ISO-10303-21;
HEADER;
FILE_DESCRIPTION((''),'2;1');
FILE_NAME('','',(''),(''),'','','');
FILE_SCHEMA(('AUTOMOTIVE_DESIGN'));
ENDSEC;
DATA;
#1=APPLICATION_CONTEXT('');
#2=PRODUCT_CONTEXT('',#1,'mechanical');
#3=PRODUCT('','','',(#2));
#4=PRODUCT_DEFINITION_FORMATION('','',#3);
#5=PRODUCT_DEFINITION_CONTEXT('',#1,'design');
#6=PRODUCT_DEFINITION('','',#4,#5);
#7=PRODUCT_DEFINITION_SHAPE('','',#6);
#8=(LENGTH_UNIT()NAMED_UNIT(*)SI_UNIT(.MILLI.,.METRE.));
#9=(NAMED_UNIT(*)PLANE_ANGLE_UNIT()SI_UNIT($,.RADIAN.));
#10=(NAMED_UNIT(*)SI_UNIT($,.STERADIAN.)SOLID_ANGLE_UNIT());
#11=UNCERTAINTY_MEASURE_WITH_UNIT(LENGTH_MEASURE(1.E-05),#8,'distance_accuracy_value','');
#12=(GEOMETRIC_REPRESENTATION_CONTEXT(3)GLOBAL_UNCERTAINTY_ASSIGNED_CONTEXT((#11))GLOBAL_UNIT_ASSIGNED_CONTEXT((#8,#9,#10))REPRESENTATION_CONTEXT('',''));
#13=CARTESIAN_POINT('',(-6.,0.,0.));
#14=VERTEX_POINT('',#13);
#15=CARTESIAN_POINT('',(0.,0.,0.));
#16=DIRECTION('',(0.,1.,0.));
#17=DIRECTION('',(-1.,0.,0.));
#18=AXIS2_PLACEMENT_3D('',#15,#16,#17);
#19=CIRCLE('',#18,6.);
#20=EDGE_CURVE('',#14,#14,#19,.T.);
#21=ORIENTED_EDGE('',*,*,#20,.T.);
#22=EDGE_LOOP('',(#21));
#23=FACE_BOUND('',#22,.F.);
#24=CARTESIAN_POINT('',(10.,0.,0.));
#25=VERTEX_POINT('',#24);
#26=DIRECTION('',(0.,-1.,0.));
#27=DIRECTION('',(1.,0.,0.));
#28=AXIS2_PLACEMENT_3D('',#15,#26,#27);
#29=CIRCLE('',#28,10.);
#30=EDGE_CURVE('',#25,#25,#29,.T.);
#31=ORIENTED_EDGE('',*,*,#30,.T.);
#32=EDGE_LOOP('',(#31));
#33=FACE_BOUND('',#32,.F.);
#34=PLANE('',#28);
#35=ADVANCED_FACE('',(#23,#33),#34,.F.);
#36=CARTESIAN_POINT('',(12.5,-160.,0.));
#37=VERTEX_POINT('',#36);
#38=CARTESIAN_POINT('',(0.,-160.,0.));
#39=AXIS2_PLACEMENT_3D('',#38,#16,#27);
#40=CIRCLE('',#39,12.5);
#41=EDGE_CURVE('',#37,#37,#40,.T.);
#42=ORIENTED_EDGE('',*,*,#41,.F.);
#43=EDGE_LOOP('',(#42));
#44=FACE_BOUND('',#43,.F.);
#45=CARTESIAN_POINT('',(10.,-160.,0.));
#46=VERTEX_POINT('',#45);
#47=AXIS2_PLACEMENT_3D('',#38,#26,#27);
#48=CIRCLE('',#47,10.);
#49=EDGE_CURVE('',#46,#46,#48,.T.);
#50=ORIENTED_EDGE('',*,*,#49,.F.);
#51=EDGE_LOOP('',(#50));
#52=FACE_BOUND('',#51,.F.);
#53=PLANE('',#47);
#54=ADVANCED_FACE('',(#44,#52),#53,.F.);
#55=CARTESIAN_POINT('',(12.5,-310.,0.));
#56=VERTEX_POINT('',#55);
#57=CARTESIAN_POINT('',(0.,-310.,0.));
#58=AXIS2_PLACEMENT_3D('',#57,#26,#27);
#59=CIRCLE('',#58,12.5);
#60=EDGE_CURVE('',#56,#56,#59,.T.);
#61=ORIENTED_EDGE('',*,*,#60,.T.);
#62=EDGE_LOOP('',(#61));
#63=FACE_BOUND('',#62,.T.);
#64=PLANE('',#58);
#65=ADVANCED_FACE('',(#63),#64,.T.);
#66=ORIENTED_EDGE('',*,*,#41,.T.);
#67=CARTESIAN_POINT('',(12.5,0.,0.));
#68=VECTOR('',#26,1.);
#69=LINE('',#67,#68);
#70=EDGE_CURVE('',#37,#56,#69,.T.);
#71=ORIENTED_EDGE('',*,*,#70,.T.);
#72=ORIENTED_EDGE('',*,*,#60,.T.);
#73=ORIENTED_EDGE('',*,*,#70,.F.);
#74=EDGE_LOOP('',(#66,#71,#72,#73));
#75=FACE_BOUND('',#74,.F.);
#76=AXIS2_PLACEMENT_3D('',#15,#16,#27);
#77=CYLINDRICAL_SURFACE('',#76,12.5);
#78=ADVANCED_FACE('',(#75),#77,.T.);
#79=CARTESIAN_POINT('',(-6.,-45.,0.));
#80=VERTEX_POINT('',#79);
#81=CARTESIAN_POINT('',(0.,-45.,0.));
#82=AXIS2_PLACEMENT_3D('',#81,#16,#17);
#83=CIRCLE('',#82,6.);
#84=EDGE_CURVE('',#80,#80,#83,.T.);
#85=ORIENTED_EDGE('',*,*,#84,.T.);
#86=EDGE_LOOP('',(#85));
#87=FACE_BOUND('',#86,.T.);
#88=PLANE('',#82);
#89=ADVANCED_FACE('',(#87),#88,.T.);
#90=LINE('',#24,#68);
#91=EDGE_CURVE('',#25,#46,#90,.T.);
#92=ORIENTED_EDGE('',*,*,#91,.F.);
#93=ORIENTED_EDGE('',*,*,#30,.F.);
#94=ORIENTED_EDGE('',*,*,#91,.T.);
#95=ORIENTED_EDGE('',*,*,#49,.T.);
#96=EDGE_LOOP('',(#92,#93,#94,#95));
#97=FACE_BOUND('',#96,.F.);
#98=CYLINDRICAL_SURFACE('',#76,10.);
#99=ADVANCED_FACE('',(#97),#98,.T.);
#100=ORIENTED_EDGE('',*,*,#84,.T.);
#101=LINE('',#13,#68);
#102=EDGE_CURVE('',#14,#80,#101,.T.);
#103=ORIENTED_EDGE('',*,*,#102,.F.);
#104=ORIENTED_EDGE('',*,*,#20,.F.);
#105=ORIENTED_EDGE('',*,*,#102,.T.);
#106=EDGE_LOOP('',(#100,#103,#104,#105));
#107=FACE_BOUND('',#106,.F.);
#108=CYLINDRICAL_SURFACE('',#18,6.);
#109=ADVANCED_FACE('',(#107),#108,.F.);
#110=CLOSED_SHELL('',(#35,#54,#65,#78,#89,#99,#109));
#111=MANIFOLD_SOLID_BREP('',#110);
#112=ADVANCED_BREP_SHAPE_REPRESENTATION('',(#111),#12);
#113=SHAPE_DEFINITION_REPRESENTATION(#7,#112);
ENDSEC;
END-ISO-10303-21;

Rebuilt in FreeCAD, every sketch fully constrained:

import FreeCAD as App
import Part
import Sketcher

V = App.Vector
Q = App.Units.Quantity


def edges_at(feature, points):
    """Names of the edges that pass closest to the given points."""
    edges = feature.Shape.Edges
    near = lambda p: min(range(len(edges)), key=lambda i: edges[i].distToShape(Part.Vertex(*p))[0])
    return sorted({f"Edge{near(p) + 1}" for p in points})

doc = App.newDocument("Part")
body = doc.addObject("PartDesign::Body", "Body")

# Sketch on XZ plane
sketch1 = doc.addObject("Sketcher::SketchObject", "Sketch")
body.addObject(sketch1)
sketch1.AttachmentSupport = (doc.XZ_Plane, [""])
sketch1.MapMode = "FlatFace"
sketch1.addGeometry(Part.Circle(V(0, 0, 0), V(0, 0, 1), 12.5), False)
sketch1.addConstraint([
    Sketcher.Constraint("Coincident", 0, 3, -1, 1),
    Sketcher.Constraint("Diameter", 0, Q("25 mm")),
])
pad1 = doc.addObject("PartDesign::Pad", "Pad")
body.addObject(pad1)
pad1.Profile = sketch1
pad1.Length = 310

# Sketch on XZ plane
sketch2 = doc.addObject("Sketcher::SketchObject", "Sketch001")
body.addObject(sketch2)
sketch2.AttachmentSupport = (doc.XZ_Plane, [""])
sketch2.MapMode = "FlatFace"
sketch2.addGeometry(Part.Circle(V(0, 0, 0), V(0, 0, 1), 6), False)
sketch2.addConstraint([
    Sketcher.Constraint("Coincident", 0, 3, -1, 1),
    Sketcher.Constraint("Diameter", 0, Q("12 mm")),
])
pocket1 = doc.addObject("PartDesign::Pocket", "Pocket")
body.addObject(pocket1)
pocket1.Profile = sketch2
pocket1.Length = 45
pocket1.Reversed = True
doc.recompute()

chamfer = doc.addObject("PartDesign::Chamfer", "Chamfer")
body.addObject(chamfer)
chamfer.Base = (pocket1, edges_at(pocket1, [(-12.5, 0, 0)]))
chamfer.Size = 1

# Sketch on XZ plane
sketch3 = doc.addObject("Sketcher::SketchObject", "Sketch002")
body.addObject(sketch3)
sketch3.AttachmentSupport = (doc.XZ_Plane, [""])
sketch3.MapMode = "FlatFace"
sketch3.addGeometry([
    Part.Circle(V(0, 0, 0), V(0, 0, 1), 20.961122),
    Part.Circle(V(0, 0, 0), V(0, 0, 1), 10),
], False)
sketch3.addConstraint([
    Sketcher.Constraint("Coincident", 0, 3, -1, 1),
    Sketcher.Constraint("Coincident", 1, 3, -1, 1),
    Sketcher.Constraint("Diameter", 1, Q("20 mm")),
    Sketcher.Constraint("Diameter", 0, Q("41.922244 mm")),
])
pocket2 = doc.addObject("PartDesign::Pocket", "Pocket001")
body.addObject(pocket2)
pocket2.Profile = sketch3
pocket2.Length = 160
pocket2.Reversed = True

doc.recompute()
